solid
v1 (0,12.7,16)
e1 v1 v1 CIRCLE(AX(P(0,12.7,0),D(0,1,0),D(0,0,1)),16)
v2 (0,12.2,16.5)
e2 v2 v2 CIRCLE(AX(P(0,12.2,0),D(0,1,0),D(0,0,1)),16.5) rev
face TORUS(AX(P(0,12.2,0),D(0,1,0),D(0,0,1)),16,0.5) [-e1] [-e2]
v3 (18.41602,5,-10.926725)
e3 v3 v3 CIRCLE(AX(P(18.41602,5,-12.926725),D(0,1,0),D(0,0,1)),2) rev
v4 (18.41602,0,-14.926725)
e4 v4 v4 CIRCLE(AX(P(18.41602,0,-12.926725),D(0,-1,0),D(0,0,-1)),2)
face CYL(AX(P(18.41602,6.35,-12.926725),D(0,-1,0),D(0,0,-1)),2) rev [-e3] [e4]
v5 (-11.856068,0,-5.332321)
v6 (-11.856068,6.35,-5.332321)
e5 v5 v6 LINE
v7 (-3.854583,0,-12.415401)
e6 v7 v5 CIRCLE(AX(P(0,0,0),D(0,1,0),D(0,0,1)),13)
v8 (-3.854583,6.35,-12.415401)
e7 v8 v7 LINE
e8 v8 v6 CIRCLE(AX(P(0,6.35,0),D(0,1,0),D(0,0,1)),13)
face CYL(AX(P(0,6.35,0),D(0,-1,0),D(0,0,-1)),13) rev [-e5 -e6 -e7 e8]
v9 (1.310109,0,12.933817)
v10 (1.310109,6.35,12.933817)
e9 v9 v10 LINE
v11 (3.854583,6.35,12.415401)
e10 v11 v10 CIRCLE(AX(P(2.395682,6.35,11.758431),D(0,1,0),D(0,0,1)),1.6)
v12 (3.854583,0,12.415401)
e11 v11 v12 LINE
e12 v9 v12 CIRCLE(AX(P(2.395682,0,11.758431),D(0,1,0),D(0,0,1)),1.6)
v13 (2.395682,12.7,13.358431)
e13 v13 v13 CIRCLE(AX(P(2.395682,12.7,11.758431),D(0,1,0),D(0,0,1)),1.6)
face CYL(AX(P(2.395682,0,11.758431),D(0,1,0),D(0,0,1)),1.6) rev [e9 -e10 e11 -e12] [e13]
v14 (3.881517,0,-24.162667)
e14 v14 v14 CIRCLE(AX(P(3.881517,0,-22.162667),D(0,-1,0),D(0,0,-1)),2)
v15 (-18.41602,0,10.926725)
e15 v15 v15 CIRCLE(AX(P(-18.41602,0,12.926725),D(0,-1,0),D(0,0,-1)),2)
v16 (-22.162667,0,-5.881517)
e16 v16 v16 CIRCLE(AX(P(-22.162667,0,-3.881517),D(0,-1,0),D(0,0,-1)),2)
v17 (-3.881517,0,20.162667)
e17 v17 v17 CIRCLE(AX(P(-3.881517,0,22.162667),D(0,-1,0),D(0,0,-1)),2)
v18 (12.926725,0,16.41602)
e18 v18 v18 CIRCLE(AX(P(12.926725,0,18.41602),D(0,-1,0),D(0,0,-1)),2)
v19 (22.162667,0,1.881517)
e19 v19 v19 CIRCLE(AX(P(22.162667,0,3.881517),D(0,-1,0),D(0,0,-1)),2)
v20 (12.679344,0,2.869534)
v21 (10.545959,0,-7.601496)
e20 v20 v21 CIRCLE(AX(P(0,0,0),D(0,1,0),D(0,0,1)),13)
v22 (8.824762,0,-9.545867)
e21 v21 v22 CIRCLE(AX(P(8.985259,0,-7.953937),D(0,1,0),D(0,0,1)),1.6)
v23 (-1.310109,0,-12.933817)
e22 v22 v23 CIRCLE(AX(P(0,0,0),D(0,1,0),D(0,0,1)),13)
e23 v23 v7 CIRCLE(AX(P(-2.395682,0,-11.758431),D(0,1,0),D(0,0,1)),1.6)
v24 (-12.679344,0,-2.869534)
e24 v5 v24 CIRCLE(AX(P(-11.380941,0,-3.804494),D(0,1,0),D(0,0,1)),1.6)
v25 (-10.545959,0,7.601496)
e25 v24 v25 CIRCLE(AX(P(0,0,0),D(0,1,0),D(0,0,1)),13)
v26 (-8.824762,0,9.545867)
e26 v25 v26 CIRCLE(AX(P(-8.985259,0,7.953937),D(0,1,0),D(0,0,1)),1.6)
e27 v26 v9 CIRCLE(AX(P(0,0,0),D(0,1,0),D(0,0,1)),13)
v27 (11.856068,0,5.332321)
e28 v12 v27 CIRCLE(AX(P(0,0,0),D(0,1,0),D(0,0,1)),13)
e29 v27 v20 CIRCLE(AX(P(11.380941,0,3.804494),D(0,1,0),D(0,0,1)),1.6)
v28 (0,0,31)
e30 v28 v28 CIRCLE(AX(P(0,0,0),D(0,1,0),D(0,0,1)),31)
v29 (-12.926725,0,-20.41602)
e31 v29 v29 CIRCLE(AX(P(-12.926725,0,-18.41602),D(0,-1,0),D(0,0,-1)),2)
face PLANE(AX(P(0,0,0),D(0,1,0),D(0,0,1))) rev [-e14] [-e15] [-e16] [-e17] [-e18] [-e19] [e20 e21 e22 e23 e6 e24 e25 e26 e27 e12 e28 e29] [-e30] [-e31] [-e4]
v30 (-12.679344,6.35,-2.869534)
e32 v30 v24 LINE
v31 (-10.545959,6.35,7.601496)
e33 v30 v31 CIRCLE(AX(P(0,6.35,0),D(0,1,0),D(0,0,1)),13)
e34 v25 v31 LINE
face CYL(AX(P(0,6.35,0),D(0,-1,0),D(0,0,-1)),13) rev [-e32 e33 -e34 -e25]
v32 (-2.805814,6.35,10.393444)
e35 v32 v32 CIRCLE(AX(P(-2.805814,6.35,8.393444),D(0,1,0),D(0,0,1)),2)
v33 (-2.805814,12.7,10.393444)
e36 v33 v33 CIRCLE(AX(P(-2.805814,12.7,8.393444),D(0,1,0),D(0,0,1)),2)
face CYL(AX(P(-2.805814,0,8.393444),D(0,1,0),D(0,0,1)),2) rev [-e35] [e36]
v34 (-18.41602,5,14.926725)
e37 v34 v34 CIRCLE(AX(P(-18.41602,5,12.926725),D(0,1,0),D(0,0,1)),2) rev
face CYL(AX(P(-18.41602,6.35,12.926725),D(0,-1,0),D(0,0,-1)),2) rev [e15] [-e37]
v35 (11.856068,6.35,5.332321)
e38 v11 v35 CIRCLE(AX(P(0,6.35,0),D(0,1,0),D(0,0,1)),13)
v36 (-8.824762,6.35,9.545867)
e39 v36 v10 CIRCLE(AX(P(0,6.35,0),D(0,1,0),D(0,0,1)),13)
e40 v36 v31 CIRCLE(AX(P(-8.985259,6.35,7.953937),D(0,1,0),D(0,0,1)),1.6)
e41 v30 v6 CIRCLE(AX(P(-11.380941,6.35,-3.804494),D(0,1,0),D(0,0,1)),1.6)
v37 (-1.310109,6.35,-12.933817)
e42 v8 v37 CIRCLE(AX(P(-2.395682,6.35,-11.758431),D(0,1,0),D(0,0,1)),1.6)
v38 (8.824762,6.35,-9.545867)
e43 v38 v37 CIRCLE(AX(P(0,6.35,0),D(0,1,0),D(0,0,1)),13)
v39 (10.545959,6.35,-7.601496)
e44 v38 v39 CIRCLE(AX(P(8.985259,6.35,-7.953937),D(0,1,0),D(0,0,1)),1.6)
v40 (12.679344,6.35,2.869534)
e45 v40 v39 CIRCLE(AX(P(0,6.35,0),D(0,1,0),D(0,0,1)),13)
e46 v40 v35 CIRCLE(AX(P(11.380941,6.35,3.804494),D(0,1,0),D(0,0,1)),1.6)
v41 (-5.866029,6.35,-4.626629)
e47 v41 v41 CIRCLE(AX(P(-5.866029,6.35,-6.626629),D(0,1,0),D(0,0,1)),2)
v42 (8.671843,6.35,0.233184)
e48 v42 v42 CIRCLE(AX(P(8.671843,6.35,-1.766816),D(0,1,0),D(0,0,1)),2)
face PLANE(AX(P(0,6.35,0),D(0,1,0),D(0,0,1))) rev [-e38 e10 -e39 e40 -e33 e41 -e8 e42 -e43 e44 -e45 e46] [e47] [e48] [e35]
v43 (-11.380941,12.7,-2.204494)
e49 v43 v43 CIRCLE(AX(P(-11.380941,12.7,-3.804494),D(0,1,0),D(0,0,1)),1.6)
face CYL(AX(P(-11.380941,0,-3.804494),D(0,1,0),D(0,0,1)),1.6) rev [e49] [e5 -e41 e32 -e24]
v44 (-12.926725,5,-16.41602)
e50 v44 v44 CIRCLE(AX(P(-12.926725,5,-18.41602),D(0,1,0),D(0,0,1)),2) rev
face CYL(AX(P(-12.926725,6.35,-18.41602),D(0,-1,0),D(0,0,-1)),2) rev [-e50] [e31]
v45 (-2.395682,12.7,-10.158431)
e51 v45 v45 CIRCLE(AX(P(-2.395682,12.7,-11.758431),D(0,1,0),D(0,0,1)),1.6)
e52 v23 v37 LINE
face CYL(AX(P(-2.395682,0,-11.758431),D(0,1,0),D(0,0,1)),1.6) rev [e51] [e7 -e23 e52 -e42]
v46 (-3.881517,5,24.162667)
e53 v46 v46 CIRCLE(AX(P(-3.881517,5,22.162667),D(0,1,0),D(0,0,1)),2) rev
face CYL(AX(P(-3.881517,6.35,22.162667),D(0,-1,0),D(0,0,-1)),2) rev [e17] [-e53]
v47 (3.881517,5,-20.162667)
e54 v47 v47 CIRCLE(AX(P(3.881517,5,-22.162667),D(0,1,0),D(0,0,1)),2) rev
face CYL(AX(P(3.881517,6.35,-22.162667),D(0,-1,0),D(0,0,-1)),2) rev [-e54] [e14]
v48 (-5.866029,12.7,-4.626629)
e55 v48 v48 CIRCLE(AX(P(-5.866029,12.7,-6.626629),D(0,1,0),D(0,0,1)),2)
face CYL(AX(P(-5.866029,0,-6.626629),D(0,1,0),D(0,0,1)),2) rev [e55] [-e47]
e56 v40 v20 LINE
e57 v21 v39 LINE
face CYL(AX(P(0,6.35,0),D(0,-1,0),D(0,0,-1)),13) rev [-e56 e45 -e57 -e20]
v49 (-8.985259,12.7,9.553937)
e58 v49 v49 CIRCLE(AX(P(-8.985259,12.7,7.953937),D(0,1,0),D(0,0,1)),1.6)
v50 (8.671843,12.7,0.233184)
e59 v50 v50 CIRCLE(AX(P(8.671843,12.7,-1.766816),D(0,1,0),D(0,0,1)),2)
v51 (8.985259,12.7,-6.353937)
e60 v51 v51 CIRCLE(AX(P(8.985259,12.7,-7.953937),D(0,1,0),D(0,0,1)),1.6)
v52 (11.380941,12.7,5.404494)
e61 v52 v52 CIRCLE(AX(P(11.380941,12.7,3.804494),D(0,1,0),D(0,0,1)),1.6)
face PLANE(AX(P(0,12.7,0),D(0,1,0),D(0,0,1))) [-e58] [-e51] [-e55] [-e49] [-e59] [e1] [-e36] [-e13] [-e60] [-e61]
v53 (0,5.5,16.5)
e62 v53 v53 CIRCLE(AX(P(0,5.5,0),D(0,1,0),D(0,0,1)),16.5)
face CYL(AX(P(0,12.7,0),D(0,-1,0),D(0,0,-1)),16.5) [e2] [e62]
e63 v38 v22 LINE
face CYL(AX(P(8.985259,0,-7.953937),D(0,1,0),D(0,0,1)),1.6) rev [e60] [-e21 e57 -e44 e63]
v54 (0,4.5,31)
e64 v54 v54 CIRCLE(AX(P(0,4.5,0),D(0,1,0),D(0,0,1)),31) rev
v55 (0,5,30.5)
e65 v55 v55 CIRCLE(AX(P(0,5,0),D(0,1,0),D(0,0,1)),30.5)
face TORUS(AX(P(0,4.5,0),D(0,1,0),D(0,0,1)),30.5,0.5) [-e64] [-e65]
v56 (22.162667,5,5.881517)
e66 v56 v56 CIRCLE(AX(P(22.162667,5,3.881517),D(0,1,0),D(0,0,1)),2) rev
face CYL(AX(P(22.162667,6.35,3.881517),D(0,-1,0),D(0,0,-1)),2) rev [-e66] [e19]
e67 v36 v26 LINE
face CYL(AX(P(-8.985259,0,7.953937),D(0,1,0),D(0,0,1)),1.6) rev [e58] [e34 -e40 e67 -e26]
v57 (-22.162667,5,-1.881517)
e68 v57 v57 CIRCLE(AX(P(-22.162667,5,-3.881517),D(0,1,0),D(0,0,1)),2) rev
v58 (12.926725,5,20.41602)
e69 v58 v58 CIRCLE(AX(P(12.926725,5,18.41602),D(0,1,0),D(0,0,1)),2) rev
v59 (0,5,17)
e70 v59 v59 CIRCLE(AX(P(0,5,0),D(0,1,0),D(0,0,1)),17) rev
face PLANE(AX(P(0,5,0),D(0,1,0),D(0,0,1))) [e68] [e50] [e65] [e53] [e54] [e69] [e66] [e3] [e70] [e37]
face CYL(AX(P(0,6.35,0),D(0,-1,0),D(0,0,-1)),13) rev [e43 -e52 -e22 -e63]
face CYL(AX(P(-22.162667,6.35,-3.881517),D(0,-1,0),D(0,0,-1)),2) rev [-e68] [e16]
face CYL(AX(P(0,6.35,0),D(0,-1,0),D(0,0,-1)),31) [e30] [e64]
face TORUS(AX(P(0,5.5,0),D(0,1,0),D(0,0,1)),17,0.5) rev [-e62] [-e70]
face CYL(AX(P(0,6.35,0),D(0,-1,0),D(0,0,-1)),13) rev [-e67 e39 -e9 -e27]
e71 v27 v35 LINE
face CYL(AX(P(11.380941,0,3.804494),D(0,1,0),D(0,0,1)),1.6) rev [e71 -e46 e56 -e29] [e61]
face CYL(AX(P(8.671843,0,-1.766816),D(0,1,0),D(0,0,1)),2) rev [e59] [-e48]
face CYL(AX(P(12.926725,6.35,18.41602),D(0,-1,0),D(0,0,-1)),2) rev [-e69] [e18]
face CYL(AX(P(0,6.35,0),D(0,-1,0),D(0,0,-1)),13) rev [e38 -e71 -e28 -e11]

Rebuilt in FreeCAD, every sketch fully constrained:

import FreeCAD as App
import Part
import Sketcher

V = App.Vector


def edges_at(feature, points):
    """Names of the edges that pass closest to the given points."""
    edges = feature.Shape.Edges
    near = lambda p: min(range(len(edges)), key=lambda i: edges[i].distToShape(Part.Vertex(*p))[0])
    return sorted({f"Edge{near(p) + 1}" for p in points})

doc = App.newDocument("Part")
body = doc.addObject("PartDesign::Body", "Body")

# Sketch on XZ plane
sketch1 = body.newObject("Sketcher::SketchObject", "Sketch")
sketch1.AttachmentSupport = (doc.getObject("XZ_Plane"), [""])
sketch1.MapMode = "FlatFace"
sketch1.addGeometry(Part.Circle(V(0, 0, 0), V(0, 0, 1), 31), False)
sketch1.addGeometry(Part.Circle(V(0, 0, 0), V(0, 0, 1), 13), False)
sketch1.addConstraint(Sketcher.Constraint("Coincident", 0, 3, -1, 1))
sketch1.addConstraint(Sketcher.Constraint("Coincident", 1, 3, -1, 1))
sketch1.addConstraint(Sketcher.Constraint("Diameter", 0, 62.0))
sketch1.addConstraint(Sketcher.Constraint("Diameter", 1, 26.0))
pad1 = body.newObject("PartDesign::Pad", "Pad")
pad1.Profile = sketch1
pad1.Length = 6.35
pad1.Reversed = True

# Sketch on XZ plane
sketch2 = body.newObject("Sketcher::SketchObject", "Sketch001")
sketch2.AttachmentSupport = (doc.getObject("XZ_Plane"), [""])
sketch2.MapMode = "FlatFace"
sketch2.addGeometry(Part.Circle(V(-3.881517, 22.162667, 0), V(0, 0, 1), 2), False)
sketch2.addGeometry(Part.Circle(V(-12.926725, -18.41602, 0), V(0, 0, 1), 2), False)
sketch2.addGeometry(Part.Circle(V(3.881517, -22.162667, 0), V(0, 0, 1), 2), False)
sketch2.addGeometry(Part.Circle(V(18.41602, -12.926725, 0), V(0, 0, 1), 2), False)
sketch2.addGeometry(Part.Circle(V(22.162667, 3.881517, 0), V(0, 0, 1), 2), False)
sketch2.addGeometry(Part.Circle(V(12.926725, 18.41602, 0), V(0, 0, 1), 2), False)
sketch2.addGeometry(Part.Circle(V(-18.41602, 12.926725, 0), V(0, 0, 1), 2), False)
sketch2.addGeometry(Part.Circle(V(-22.162667, -3.881517, 0), V(0, 0, 1), 2), False)
sketch2.addConstraint(Sketcher.Constraint("Equal", 0, 1))
sketch2.addConstraint(Sketcher.Constraint("Equal", 1, 2))
sketch2.addConstraint(Sketcher.Constraint("Equal", 2, 3))
sketch2.addConstraint(Sketcher.Constraint("Equal", 3, 4))
sketch2.addConstraint(Sketcher.Constraint("Equal", 4, 5))
sketch2.addConstraint(Sketcher.Constraint("Equal", 5, 6))
sketch2.addConstraint(Sketcher.Constraint("Equal", 6, 7))
sketch2.addConstraint(Sketcher.Constraint("Symmetric", 0, 3, 2, 3, -1, 1))
sketch2.addConstraint(Sketcher.Constraint("Symmetric", 1, 3, 5, 3, -1, 1))
sketch2.addConstraint(Sketcher.Constraint("Symmetric", 3, 3, 6, 3, -1, 1))
sketch2.addConstraint(Sketcher.Constraint("Symmetric", 4, 3, 7, 3, -1, 1))
sketch2.addConstraint(Sketcher.Constraint("Diameter", 0, 4.0))
sketch2.addConstraint(Sketcher.Constraint("DistanceY", 1, 3, -1, 1, 18.41602))
sketch2.addConstraint(Sketcher.Constraint("DistanceX", -1, 1, 3, 3, 18.41602))
sketch2.addConstraint(Sketcher.Constraint("DistanceY", 4, 3, 0, 3, 18.28115))
sketch2.addConstraint(Sketcher.Constraint("DistanceX", 2, 3, 4, 3, 18.28115))
sketch2.addConstraint(Sketcher.Constraint("DistanceX", 1, 3, 5, 3, 25.85345))
sketch2.addConstraint(Sketcher.Constraint("DistanceX", 0, 3, -1, 1, 3.881517))
sketch2.addConstraint(Sketcher.Constraint("DistanceY", -1, 1, 0, 3, 22.162667))
sketch2.addConstraint(Sketcher.Constraint("DistanceY", 3, 3, -1, 1, 12.926725))
pocket1 = body.newObject("PartDesign::Pocket", "Pocket")
pocket1.Profile = sketch2
pocket1.Type = "ThroughAll"

# Sketch on XZ plane
sketch3 = body.newObject("Sketcher::SketchObject", "Sketch002")
sketch3.AttachmentSupport = (doc.getObject("XZ_Plane"), [""])
sketch3.MapMode = "FlatFace"
sketch3.AttachmentOffset = App.Placement(V(0, 0, -6.35), App.Rotation())
sketch3.addGeometry(Part.Circle(V(0, 0, 0), V(0, 0, 1), 16.5), False)
sketch3.addConstraint(Sketcher.Constraint("Coincident", 0, 3, -1, 1))
sketch3.addConstraint(Sketcher.Constraint("Diameter", 0, 33.0))
pad2 = body.newObject("PartDesign::Pad", "Pad001")
pad2.Profile = sketch3
pad2.Length = 6.35
pad2.Reversed = True

# Sketch on XZ plane
sketch4 = body.newObject("Sketcher::SketchObject", "Sketch003")
sketch4.AttachmentSupport = (doc.getObject("XZ_Plane"), [""])
sketch4.MapMode = "FlatFace"
sketch4.AttachmentOffset = App.Placement(V(0, 0, -12.7), App.Rotation())
sketch4.addGeometry(Part.Circle(V(-8.985259, 7.953937, 0), V(0, 0, 1), 1.6), False)
sketch4.addGeometry(Part.Circle(V(-11.380941, -3.804494, 0), V(0, 0, 1), 1.6), False)
sketch4.addGeometry(Part.Circle(V(-2.395682, -11.758431, 0), V(0, 0, 1), 1.6), False)
sketch4.addGeometry(Part.Circle(V(8.985259, -7.953937, 0), V(0, 0, 1), 1.6), False)
sketch4.addGeometry(Part.Circle(V(11.380941, 3.804494, 0), V(0, 0, 1), 1.6), False)
sketch4.addGeometry(Part.Circle(V(2.395682, 11.758431, 0), V(0, 0, 1), 1.6), False)
sketch4.addConstraint(Sketcher.Constraint("Equal", 0, 1))
sketch4.addConstraint(Sketcher.Constraint("Equal", 1, 2))
sketch4.addConstraint(Sketcher.Constraint("Equal", 2, 3))
sketch4.addConstraint(Sketcher.Constraint("Equal", 3, 4))
sketch4.addConstraint(Sketcher.Constraint("Equal", 4, 5))
sketch4.addConstraint(Sketcher.Constraint("Symmetric", 0, 3, 3, 3, -1, 1))
sketch4.addConstraint(Sketcher.Constraint("Symmetric", 1, 3, 4, 3, -1, 1))
sketch4.addConstraint(Sketcher.Constraint("Symmetric", 2, 3, 5, 3, -1, 1))
sketch4.addConstraint(Sketcher.Constraint("Diameter", 0, 3.2))
sketch4.addConstraint(Sketcher.Constraint("DistanceX", 1, 3, 3, 3, 20.3662))
sketch4.addConstraint(Sketcher.Constraint("DistanceX", 0, 3, -1, 1, 8.985259))
sketch4.addConstraint(Sketcher.Constraint("DistanceY", 2, 3, -1, 1, 11.758431))
sketch4.addConstraint(Sketcher.Constraint("DistanceY", 1, 3, 0, 3, 11.758431))
sketch4.addConstraint(Sketcher.Constraint("DistanceX", 1, 3, 2, 3, 8.985259))
sketch4.addConstraint(Sketcher.Constraint("DistanceY", 2, 3, 0, 3, 19.712369))
pocket2 = body.newObject("PartDesign::Pocket", "Pocket001")
pocket2.Profile = sketch4
pocket2.Type = "ThroughAll"
pocket2.Reversed = True

# Sketch on XZ plane
sketch5 = body.newObject("Sketcher::SketchObject", "Sketch004")
sketch5.AttachmentSupport = (doc.getObject("XZ_Plane"), [""])
sketch5.MapMode = "FlatFace"
sketch5.AttachmentOffset = App.Placement(V(0, 0, -12.7), App.Rotation())
sketch5.addGeometry(Part.Circle(V(-2.805814, 8.393444, 0), V(0, 0, 1), 2), False)
sketch5.addGeometry(Part.Circle(V(-5.866029, -6.626629, 0), V(0, 0, 1), 2), False)
sketch5.addGeometry(Part.Circle(V(8.671843, -1.766816, 0), V(0, 0, 1), 2), False)
sketch5.addConstraint(Sketcher.Constraint("Equal", 0, 1))
sketch5.addConstraint(Sketcher.Constraint("Equal", 1, 2))
sketch5.addConstraint(Sketcher.Constraint("Diameter", 0, 4.0))
sketch5.addConstraint(Sketcher.Constraint("DistanceX", 1, 3, -1, 1, 5.866029))
sketch5.addConstraint(Sketcher.Constraint("DistanceY", 1, 3, -1, 1, 6.626629))
sketch5.addConstraint(Sketcher.Constraint("DistanceY", 2, 3, 0, 3, 10.16026))
sketch5.addConstraint(Sketcher.Constraint("DistanceX", 1, 3, 2, 3, 14.537872))
sketch5.addConstraint(Sketcher.Constraint("DistanceX", 0, 3, -1, 1, 2.805814))
sketch5.addConstraint(Sketcher.Constraint("DistanceY", -1, 1, 0, 3, 8.393444))
pocket3 = body.newObject("PartDesign::Pocket", "Pocket002")
pocket3.Profile = sketch5
pocket3.Type = "ThroughAll"
pocket3.Reversed = True

# Sketch on XZ plane
sketch6 = body.newObject("Sketcher::SketchObject", "Sketch005")
sketch6.AttachmentSupport = (doc.getObject("XZ_Plane"), [""])
sketch6.MapMode = "FlatFace"
sketch6.AttachmentOffset = App.Placement(V(0, 0, -5), App.Rotation())
sketch6.addGeometry(Part.Circle(V(0, 0, 0), V(0, 0, 1), 31), False)
sketch6.addGeometry(Part.Circle(V(0, 0, 0), V(0, 0, 1), 16.5), False)
sketch6.addConstraint(Sketcher.Constraint("Coincident", 0, 3, -1, 1))
sketch6.addConstraint(Sketcher.Constraint("Coincident", 1, 3, -1, 1))
sketch6.addConstraint(Sketcher.Constraint("Diameter", 0, 62.0))
sketch6.addConstraint(Sketcher.Constraint("Diameter", 1, 33.0))
pocket4 = body.newObject("PartDesign::Pocket", "Pocket003")
pocket4.Profile = sketch6
pocket4.Length = 1.35
doc.recompute()

fillet = body.newObject("PartDesign::Fillet", "Fillet")
fillet.Base = (pocket4, edges_at(pocket4, [(0, 5, -16.5), (0, 5, -31), (0, 12.7, -16.5)]))
fillet.Radius = 0.5

doc.recompute()
